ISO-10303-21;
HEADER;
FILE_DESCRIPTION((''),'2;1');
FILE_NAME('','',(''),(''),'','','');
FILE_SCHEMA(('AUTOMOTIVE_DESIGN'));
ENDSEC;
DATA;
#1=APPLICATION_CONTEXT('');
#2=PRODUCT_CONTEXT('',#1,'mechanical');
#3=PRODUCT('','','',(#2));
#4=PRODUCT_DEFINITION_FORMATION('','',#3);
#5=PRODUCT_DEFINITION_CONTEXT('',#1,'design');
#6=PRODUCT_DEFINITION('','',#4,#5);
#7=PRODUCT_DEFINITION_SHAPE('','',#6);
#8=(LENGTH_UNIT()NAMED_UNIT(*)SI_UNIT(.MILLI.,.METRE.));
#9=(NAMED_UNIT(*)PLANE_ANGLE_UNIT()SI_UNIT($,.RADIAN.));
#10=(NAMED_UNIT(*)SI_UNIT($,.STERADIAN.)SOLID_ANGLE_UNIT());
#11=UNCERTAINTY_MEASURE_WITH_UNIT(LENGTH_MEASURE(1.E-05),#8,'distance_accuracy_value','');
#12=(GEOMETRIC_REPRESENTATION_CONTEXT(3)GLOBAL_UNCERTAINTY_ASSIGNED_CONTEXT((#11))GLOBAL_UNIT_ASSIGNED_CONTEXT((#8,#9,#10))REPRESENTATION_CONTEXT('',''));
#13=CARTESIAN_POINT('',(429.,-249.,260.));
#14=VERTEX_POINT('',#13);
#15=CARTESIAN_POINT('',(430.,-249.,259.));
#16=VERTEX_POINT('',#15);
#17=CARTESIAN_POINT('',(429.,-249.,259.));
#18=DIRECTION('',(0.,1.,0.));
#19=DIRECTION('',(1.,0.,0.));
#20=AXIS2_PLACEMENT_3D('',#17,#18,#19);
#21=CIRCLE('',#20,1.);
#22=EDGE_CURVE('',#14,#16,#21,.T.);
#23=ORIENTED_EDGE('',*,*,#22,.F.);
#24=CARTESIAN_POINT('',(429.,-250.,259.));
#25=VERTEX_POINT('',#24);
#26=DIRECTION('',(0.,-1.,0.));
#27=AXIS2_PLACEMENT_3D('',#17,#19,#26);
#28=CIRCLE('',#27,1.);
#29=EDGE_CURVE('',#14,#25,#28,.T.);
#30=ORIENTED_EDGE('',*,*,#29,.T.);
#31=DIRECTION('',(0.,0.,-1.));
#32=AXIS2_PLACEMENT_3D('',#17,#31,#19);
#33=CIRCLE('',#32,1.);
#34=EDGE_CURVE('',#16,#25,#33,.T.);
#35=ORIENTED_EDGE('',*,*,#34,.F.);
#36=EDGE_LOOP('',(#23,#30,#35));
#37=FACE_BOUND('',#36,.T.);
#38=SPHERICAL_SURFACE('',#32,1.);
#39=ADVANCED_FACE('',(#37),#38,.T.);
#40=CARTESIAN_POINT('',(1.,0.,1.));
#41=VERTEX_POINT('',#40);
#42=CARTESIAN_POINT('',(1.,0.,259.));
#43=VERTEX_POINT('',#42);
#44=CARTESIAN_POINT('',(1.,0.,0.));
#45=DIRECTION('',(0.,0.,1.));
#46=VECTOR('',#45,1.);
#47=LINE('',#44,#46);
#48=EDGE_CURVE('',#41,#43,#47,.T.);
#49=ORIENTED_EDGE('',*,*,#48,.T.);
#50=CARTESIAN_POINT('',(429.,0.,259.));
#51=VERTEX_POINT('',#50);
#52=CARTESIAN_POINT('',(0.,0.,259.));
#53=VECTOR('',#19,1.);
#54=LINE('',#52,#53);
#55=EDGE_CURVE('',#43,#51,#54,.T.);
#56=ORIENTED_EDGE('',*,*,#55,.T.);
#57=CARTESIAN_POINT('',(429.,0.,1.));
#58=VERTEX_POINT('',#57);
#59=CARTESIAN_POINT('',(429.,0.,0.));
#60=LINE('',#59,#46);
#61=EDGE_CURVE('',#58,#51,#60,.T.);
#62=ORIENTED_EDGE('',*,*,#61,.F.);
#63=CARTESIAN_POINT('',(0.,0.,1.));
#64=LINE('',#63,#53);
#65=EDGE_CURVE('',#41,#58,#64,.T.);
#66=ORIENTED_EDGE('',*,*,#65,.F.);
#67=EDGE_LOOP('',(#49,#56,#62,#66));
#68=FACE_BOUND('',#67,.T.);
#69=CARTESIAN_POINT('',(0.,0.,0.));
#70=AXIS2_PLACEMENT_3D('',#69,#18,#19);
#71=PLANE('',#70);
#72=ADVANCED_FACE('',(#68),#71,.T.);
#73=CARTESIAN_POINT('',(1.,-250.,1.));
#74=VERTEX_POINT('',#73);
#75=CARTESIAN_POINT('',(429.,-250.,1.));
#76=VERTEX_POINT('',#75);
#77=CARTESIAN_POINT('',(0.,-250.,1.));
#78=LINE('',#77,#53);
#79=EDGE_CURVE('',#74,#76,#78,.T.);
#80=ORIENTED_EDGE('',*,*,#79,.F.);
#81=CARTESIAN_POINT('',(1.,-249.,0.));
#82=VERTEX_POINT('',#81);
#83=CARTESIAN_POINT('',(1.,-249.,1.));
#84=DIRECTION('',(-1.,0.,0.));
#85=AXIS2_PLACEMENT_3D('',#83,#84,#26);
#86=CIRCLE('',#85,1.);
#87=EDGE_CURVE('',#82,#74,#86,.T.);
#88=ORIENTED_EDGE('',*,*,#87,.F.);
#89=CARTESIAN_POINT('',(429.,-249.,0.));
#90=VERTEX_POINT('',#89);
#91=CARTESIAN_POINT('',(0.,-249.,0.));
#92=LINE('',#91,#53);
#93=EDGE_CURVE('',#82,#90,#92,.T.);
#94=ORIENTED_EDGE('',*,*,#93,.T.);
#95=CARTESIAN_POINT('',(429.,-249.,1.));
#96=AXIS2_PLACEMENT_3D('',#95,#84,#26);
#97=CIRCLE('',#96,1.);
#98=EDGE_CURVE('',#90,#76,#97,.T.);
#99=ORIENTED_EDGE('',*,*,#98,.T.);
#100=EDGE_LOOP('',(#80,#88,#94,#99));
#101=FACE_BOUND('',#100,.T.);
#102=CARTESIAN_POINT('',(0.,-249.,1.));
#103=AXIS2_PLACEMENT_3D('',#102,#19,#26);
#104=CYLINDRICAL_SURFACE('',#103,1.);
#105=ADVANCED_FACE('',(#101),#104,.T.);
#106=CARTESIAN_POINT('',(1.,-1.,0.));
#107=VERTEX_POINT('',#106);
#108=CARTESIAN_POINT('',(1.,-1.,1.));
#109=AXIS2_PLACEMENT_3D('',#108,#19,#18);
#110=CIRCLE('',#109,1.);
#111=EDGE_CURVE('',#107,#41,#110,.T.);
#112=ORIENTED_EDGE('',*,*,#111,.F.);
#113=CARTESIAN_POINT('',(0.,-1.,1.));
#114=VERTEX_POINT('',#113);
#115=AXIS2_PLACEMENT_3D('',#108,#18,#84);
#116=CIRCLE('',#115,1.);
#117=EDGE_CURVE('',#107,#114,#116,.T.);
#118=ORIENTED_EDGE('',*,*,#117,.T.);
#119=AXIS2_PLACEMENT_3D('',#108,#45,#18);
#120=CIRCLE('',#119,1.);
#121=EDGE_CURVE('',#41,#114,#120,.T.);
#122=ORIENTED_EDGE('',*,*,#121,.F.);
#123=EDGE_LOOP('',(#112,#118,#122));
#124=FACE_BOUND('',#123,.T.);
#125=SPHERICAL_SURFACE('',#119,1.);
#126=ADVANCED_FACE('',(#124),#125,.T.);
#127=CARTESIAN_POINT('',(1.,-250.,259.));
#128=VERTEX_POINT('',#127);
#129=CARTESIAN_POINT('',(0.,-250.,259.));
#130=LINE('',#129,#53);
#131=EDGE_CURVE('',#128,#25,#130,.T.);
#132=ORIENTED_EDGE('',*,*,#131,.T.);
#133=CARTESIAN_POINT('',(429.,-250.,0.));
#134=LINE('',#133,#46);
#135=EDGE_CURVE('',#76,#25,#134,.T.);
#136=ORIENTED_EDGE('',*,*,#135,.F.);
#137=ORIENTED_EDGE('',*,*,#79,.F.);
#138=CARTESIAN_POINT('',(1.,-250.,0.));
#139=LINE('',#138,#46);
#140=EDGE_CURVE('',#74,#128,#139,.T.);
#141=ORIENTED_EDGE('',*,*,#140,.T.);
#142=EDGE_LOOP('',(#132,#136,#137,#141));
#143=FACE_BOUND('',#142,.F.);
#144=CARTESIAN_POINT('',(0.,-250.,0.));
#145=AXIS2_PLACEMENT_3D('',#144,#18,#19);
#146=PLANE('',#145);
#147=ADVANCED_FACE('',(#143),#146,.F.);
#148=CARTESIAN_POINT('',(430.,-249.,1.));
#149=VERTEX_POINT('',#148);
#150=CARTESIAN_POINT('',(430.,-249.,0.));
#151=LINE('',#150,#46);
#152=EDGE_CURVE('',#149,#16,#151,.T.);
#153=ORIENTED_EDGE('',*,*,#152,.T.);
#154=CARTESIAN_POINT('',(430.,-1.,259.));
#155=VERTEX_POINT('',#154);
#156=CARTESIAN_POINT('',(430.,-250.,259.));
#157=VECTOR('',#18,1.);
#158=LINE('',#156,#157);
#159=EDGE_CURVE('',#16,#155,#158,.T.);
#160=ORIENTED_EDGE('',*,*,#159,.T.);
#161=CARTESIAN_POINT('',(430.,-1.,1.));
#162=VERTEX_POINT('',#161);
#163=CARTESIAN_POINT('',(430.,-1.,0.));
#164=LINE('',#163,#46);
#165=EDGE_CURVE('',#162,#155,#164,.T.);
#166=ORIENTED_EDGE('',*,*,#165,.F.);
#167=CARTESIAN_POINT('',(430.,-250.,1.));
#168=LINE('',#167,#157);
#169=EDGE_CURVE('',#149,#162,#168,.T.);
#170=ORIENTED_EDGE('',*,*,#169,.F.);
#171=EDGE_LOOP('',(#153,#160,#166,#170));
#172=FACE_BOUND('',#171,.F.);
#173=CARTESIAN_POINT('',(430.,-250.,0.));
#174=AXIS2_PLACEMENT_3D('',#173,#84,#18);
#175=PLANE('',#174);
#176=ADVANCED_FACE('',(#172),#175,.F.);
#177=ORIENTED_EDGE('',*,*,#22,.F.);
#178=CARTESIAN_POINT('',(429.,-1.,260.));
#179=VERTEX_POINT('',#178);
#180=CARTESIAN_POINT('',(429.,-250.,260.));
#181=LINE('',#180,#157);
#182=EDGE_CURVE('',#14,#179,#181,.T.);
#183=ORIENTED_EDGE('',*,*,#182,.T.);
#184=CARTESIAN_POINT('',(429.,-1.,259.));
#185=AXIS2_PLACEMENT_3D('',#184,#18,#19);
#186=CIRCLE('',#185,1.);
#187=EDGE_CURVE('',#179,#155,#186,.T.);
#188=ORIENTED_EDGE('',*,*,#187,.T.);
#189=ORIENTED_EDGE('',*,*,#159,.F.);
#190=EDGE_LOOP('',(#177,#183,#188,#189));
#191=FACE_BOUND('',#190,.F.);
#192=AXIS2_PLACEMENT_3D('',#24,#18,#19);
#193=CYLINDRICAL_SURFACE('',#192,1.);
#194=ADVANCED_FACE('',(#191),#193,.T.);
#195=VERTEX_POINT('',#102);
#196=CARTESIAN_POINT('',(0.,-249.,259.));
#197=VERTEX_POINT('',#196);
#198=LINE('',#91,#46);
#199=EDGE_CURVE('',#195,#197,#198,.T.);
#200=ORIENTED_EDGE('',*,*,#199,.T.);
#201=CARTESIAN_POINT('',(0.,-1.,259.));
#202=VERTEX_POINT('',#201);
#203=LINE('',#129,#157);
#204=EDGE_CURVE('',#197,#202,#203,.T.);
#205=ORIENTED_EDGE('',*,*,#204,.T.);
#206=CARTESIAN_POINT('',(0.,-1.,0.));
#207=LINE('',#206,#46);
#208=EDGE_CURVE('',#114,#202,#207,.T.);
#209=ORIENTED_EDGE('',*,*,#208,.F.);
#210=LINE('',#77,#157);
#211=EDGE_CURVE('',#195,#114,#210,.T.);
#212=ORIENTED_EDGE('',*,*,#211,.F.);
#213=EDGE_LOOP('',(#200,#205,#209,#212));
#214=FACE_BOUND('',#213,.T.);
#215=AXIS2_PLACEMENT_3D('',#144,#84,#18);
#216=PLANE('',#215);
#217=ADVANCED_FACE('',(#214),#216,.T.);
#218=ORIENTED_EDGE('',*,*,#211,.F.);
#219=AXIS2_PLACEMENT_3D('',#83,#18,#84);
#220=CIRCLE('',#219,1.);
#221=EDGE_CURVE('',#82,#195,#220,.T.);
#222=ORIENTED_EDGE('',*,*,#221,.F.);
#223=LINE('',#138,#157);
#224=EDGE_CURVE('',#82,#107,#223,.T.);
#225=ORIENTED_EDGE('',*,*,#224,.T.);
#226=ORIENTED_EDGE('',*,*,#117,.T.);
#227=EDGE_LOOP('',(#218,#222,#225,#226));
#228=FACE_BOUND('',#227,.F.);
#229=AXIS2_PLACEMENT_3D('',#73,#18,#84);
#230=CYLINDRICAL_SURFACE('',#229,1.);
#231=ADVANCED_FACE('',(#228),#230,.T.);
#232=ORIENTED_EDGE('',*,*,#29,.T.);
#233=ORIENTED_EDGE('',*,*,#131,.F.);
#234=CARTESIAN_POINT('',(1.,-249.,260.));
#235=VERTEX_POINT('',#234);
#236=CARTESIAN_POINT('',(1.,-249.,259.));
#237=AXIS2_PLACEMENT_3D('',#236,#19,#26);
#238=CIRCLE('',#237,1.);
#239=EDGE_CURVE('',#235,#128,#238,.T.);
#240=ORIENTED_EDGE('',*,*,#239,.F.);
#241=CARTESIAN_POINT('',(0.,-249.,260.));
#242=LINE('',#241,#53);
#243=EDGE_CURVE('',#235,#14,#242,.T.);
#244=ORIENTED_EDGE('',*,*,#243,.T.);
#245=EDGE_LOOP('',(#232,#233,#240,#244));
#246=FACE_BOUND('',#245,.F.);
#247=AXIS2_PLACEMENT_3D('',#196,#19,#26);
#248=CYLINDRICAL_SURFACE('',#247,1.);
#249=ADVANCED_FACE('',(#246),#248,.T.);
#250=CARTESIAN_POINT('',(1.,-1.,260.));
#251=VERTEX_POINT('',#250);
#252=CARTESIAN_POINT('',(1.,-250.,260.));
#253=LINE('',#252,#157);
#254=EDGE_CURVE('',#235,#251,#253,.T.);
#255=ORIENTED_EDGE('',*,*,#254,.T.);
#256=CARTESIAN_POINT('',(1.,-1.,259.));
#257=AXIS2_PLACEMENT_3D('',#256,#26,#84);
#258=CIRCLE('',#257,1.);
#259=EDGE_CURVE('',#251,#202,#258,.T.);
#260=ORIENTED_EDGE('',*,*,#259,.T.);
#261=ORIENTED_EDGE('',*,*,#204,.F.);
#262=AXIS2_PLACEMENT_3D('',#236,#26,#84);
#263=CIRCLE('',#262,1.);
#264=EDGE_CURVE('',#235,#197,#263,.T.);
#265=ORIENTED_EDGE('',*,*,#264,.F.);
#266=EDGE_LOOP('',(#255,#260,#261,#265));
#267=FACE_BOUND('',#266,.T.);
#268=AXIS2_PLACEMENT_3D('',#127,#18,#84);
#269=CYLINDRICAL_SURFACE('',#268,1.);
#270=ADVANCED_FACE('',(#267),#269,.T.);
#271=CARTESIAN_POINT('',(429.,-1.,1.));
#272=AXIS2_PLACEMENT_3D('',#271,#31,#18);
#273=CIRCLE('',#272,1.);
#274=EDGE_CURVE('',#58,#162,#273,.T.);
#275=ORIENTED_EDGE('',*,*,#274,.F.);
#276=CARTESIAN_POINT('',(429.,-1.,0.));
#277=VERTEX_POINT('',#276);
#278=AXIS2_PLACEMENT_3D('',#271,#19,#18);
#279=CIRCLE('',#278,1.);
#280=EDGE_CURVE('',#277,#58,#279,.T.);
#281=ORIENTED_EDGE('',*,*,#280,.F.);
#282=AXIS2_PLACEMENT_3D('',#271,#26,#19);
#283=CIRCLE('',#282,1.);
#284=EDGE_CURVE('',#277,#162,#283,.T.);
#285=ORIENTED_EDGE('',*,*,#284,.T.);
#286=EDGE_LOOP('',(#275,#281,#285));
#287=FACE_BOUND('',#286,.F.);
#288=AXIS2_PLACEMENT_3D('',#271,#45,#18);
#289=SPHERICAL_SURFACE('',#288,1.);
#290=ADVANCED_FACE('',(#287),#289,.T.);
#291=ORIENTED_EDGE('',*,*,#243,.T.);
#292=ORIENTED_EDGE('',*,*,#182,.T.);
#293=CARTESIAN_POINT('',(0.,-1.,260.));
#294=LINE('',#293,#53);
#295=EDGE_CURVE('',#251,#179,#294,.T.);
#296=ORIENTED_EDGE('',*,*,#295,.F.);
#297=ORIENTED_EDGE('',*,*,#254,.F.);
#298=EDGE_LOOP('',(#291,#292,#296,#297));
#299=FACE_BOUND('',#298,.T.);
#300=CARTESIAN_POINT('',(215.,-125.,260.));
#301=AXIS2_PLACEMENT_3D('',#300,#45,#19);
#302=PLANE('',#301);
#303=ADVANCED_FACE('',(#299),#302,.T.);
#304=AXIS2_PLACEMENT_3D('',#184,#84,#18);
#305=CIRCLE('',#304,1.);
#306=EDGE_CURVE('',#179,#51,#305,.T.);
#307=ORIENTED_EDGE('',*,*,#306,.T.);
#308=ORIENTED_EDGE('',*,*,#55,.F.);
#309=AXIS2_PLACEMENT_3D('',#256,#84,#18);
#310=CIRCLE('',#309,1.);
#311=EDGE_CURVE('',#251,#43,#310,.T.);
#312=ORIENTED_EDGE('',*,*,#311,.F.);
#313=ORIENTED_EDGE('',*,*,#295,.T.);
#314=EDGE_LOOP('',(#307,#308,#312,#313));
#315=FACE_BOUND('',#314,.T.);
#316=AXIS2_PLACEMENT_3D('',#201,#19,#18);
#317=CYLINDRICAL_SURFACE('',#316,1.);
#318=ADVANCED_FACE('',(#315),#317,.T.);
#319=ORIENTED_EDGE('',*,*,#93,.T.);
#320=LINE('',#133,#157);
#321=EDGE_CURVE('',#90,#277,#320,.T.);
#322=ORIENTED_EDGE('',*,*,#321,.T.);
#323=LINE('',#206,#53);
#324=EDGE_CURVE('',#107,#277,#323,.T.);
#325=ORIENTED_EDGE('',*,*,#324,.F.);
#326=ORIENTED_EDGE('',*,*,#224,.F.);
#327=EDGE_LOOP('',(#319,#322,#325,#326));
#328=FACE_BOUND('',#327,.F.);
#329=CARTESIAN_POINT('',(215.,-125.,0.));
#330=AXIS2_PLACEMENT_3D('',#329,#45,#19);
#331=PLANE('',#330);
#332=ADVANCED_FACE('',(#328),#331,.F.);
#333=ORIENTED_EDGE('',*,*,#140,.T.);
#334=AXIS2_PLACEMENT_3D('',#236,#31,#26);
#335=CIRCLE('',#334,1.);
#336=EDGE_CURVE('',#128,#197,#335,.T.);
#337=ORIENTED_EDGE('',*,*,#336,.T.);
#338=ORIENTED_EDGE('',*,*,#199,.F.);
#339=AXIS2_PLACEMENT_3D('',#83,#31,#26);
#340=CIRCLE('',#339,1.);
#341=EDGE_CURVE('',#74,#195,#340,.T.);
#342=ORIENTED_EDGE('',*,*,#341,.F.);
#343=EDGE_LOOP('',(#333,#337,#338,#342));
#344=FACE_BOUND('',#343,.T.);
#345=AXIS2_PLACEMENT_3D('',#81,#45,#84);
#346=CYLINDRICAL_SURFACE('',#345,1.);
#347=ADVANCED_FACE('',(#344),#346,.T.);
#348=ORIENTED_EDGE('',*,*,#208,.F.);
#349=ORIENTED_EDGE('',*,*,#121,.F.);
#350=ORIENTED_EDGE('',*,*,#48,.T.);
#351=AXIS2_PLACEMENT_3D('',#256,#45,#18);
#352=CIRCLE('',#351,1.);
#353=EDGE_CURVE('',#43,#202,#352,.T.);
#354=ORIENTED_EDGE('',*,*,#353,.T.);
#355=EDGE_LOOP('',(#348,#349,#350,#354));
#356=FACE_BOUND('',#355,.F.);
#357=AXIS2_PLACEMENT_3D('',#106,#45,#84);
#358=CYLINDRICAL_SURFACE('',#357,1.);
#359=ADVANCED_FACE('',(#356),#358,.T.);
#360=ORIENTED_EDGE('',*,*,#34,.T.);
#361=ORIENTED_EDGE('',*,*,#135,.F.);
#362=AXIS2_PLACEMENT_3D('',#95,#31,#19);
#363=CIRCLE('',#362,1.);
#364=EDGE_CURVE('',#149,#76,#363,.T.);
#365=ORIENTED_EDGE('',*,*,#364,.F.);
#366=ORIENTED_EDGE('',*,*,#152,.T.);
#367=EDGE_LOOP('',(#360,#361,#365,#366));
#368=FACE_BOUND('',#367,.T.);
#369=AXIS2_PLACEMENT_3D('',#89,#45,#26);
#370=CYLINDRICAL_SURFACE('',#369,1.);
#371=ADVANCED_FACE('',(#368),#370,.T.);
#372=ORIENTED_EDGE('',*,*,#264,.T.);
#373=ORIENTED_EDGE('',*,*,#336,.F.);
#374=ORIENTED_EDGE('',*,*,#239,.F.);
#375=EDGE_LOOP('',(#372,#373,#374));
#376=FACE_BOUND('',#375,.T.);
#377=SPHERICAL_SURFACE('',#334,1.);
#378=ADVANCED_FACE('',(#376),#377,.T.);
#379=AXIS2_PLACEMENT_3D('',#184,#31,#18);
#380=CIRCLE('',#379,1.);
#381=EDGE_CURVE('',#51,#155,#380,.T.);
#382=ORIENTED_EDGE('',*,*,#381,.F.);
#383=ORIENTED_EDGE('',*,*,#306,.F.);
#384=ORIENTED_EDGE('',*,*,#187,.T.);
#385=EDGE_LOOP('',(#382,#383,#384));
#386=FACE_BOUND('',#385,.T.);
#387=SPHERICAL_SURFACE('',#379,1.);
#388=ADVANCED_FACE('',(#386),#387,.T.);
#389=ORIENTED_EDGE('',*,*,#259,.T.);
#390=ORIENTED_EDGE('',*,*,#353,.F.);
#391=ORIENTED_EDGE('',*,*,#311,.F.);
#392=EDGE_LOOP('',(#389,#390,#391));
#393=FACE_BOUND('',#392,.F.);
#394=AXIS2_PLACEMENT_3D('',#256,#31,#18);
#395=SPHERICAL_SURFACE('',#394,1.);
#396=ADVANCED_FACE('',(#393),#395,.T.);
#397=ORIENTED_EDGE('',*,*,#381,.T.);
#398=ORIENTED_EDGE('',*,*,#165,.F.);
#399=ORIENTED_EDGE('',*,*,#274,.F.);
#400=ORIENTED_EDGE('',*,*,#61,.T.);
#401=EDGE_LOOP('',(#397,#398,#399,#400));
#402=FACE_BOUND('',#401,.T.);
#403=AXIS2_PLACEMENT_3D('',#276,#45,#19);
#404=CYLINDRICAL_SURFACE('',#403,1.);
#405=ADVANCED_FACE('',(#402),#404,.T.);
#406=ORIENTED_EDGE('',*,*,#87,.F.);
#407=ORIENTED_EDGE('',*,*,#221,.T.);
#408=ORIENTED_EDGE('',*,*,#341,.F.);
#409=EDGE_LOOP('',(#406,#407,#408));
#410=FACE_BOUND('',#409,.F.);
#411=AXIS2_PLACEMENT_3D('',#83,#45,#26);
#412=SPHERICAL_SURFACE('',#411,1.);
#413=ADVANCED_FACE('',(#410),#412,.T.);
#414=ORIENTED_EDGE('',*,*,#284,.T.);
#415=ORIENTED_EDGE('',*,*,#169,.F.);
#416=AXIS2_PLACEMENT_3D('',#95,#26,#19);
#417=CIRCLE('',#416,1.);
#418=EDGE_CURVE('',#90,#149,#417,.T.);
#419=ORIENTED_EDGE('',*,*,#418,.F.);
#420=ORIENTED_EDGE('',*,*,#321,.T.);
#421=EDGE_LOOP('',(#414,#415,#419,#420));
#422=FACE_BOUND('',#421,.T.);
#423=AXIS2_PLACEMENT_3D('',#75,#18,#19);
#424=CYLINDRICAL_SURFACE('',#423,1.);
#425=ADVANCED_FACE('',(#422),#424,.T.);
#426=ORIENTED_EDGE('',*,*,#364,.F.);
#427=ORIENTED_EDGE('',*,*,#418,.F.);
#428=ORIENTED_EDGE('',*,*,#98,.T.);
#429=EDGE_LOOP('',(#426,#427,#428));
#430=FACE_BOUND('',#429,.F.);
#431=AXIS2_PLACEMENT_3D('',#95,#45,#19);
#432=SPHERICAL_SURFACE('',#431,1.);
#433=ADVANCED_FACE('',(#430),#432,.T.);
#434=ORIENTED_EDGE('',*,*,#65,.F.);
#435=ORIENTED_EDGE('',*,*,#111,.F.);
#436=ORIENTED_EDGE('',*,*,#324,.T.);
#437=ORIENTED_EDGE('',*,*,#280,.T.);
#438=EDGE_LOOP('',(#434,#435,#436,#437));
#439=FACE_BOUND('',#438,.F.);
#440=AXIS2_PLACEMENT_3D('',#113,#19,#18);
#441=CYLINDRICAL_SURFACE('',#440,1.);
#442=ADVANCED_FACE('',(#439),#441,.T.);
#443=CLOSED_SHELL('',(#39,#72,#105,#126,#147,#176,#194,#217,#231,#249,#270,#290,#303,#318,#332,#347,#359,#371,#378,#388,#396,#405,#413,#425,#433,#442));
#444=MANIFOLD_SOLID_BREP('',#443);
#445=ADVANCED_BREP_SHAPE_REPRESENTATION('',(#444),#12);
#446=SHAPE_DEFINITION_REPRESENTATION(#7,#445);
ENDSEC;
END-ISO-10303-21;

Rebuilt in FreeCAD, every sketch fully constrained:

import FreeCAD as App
import Part
import Sketcher

V = App.Vector


def add_polygon(sketch, points):
    """Adds a closed chain of lines whose ends are joined by coincident constraints."""
    first, n = sketch.GeometryCount, len(points)
    for a, b in zip(points, points[1:] + points[:1]):
        sketch.addGeometry(Part.LineSegment(App.Vector(*a, 0), App.Vector(*b, 0)), False)
    for i in range(n):
        sketch.addConstraint(Sketcher.Constraint("Coincident", first + i, 2, first + (i + 1) % n, 1))

doc = App.newDocument("Part")
params = doc.addObject("Spreadsheet::Sheet", "Params")
for row, (alias, value) in enumerate([
    ("sketch1_width", "430 mm"),
    ("sketch1_height", "250 mm"),
    ("pad1_length", "260 mm"),
    ("fillet_radius", "1 mm"),
], start=1):
    params.set(f"A{row}", alias)
    params.set(f"B{row}", "=" + value)
    params.setAlias(f"B{row}", alias)

body = doc.addObject("PartDesign::Body", "Body")

# Sketch on XY plane
sketch1 = body.newObject("Sketcher::SketchObject", "Sketch")
sketch1.AttachmentSupport = (doc.getObject("XY_Plane"), [""])
sketch1.MapMode = "FlatFace"
add_polygon(sketch1, [(0, 0), (0, -250), (430, -250), (430, 0)])  # lines 0-3
sketch1.addConstraint([
    Sketcher.Constraint("Vertical", 0),
    Sketcher.Constraint("Horizontal", 1),
    Sketcher.Constraint("Vertical", 2),
    Sketcher.Constraint("Horizontal", 3),
    Sketcher.Constraint("Coincident", 3, 2, -1, 1),
    Sketcher.Constraint("DistanceX", 1, 1, 1, 2, 430.0),
    Sketcher.Constraint("DistanceY", 0, 2, 0, 1, 250.0),
])
sketch1.setExpression("Constraints[9]", "Params.sketch1_width")
sketch1.setExpression("Constraints[10]", "Params.sketch1_height")
pad1 = body.newObject("PartDesign::Pad", "Pad")
pad1.Profile = sketch1
pad1.setExpression("Length", "Params.pad1_length")
doc.recompute()

fillet = body.newObject("PartDesign::Fillet", "Fillet")
fillet.Base = (pad1, ["Edge1"])
fillet.UseAllEdges = True
fillet.setExpression("Radius", "Params.fillet_radius")

doc.recompute()
